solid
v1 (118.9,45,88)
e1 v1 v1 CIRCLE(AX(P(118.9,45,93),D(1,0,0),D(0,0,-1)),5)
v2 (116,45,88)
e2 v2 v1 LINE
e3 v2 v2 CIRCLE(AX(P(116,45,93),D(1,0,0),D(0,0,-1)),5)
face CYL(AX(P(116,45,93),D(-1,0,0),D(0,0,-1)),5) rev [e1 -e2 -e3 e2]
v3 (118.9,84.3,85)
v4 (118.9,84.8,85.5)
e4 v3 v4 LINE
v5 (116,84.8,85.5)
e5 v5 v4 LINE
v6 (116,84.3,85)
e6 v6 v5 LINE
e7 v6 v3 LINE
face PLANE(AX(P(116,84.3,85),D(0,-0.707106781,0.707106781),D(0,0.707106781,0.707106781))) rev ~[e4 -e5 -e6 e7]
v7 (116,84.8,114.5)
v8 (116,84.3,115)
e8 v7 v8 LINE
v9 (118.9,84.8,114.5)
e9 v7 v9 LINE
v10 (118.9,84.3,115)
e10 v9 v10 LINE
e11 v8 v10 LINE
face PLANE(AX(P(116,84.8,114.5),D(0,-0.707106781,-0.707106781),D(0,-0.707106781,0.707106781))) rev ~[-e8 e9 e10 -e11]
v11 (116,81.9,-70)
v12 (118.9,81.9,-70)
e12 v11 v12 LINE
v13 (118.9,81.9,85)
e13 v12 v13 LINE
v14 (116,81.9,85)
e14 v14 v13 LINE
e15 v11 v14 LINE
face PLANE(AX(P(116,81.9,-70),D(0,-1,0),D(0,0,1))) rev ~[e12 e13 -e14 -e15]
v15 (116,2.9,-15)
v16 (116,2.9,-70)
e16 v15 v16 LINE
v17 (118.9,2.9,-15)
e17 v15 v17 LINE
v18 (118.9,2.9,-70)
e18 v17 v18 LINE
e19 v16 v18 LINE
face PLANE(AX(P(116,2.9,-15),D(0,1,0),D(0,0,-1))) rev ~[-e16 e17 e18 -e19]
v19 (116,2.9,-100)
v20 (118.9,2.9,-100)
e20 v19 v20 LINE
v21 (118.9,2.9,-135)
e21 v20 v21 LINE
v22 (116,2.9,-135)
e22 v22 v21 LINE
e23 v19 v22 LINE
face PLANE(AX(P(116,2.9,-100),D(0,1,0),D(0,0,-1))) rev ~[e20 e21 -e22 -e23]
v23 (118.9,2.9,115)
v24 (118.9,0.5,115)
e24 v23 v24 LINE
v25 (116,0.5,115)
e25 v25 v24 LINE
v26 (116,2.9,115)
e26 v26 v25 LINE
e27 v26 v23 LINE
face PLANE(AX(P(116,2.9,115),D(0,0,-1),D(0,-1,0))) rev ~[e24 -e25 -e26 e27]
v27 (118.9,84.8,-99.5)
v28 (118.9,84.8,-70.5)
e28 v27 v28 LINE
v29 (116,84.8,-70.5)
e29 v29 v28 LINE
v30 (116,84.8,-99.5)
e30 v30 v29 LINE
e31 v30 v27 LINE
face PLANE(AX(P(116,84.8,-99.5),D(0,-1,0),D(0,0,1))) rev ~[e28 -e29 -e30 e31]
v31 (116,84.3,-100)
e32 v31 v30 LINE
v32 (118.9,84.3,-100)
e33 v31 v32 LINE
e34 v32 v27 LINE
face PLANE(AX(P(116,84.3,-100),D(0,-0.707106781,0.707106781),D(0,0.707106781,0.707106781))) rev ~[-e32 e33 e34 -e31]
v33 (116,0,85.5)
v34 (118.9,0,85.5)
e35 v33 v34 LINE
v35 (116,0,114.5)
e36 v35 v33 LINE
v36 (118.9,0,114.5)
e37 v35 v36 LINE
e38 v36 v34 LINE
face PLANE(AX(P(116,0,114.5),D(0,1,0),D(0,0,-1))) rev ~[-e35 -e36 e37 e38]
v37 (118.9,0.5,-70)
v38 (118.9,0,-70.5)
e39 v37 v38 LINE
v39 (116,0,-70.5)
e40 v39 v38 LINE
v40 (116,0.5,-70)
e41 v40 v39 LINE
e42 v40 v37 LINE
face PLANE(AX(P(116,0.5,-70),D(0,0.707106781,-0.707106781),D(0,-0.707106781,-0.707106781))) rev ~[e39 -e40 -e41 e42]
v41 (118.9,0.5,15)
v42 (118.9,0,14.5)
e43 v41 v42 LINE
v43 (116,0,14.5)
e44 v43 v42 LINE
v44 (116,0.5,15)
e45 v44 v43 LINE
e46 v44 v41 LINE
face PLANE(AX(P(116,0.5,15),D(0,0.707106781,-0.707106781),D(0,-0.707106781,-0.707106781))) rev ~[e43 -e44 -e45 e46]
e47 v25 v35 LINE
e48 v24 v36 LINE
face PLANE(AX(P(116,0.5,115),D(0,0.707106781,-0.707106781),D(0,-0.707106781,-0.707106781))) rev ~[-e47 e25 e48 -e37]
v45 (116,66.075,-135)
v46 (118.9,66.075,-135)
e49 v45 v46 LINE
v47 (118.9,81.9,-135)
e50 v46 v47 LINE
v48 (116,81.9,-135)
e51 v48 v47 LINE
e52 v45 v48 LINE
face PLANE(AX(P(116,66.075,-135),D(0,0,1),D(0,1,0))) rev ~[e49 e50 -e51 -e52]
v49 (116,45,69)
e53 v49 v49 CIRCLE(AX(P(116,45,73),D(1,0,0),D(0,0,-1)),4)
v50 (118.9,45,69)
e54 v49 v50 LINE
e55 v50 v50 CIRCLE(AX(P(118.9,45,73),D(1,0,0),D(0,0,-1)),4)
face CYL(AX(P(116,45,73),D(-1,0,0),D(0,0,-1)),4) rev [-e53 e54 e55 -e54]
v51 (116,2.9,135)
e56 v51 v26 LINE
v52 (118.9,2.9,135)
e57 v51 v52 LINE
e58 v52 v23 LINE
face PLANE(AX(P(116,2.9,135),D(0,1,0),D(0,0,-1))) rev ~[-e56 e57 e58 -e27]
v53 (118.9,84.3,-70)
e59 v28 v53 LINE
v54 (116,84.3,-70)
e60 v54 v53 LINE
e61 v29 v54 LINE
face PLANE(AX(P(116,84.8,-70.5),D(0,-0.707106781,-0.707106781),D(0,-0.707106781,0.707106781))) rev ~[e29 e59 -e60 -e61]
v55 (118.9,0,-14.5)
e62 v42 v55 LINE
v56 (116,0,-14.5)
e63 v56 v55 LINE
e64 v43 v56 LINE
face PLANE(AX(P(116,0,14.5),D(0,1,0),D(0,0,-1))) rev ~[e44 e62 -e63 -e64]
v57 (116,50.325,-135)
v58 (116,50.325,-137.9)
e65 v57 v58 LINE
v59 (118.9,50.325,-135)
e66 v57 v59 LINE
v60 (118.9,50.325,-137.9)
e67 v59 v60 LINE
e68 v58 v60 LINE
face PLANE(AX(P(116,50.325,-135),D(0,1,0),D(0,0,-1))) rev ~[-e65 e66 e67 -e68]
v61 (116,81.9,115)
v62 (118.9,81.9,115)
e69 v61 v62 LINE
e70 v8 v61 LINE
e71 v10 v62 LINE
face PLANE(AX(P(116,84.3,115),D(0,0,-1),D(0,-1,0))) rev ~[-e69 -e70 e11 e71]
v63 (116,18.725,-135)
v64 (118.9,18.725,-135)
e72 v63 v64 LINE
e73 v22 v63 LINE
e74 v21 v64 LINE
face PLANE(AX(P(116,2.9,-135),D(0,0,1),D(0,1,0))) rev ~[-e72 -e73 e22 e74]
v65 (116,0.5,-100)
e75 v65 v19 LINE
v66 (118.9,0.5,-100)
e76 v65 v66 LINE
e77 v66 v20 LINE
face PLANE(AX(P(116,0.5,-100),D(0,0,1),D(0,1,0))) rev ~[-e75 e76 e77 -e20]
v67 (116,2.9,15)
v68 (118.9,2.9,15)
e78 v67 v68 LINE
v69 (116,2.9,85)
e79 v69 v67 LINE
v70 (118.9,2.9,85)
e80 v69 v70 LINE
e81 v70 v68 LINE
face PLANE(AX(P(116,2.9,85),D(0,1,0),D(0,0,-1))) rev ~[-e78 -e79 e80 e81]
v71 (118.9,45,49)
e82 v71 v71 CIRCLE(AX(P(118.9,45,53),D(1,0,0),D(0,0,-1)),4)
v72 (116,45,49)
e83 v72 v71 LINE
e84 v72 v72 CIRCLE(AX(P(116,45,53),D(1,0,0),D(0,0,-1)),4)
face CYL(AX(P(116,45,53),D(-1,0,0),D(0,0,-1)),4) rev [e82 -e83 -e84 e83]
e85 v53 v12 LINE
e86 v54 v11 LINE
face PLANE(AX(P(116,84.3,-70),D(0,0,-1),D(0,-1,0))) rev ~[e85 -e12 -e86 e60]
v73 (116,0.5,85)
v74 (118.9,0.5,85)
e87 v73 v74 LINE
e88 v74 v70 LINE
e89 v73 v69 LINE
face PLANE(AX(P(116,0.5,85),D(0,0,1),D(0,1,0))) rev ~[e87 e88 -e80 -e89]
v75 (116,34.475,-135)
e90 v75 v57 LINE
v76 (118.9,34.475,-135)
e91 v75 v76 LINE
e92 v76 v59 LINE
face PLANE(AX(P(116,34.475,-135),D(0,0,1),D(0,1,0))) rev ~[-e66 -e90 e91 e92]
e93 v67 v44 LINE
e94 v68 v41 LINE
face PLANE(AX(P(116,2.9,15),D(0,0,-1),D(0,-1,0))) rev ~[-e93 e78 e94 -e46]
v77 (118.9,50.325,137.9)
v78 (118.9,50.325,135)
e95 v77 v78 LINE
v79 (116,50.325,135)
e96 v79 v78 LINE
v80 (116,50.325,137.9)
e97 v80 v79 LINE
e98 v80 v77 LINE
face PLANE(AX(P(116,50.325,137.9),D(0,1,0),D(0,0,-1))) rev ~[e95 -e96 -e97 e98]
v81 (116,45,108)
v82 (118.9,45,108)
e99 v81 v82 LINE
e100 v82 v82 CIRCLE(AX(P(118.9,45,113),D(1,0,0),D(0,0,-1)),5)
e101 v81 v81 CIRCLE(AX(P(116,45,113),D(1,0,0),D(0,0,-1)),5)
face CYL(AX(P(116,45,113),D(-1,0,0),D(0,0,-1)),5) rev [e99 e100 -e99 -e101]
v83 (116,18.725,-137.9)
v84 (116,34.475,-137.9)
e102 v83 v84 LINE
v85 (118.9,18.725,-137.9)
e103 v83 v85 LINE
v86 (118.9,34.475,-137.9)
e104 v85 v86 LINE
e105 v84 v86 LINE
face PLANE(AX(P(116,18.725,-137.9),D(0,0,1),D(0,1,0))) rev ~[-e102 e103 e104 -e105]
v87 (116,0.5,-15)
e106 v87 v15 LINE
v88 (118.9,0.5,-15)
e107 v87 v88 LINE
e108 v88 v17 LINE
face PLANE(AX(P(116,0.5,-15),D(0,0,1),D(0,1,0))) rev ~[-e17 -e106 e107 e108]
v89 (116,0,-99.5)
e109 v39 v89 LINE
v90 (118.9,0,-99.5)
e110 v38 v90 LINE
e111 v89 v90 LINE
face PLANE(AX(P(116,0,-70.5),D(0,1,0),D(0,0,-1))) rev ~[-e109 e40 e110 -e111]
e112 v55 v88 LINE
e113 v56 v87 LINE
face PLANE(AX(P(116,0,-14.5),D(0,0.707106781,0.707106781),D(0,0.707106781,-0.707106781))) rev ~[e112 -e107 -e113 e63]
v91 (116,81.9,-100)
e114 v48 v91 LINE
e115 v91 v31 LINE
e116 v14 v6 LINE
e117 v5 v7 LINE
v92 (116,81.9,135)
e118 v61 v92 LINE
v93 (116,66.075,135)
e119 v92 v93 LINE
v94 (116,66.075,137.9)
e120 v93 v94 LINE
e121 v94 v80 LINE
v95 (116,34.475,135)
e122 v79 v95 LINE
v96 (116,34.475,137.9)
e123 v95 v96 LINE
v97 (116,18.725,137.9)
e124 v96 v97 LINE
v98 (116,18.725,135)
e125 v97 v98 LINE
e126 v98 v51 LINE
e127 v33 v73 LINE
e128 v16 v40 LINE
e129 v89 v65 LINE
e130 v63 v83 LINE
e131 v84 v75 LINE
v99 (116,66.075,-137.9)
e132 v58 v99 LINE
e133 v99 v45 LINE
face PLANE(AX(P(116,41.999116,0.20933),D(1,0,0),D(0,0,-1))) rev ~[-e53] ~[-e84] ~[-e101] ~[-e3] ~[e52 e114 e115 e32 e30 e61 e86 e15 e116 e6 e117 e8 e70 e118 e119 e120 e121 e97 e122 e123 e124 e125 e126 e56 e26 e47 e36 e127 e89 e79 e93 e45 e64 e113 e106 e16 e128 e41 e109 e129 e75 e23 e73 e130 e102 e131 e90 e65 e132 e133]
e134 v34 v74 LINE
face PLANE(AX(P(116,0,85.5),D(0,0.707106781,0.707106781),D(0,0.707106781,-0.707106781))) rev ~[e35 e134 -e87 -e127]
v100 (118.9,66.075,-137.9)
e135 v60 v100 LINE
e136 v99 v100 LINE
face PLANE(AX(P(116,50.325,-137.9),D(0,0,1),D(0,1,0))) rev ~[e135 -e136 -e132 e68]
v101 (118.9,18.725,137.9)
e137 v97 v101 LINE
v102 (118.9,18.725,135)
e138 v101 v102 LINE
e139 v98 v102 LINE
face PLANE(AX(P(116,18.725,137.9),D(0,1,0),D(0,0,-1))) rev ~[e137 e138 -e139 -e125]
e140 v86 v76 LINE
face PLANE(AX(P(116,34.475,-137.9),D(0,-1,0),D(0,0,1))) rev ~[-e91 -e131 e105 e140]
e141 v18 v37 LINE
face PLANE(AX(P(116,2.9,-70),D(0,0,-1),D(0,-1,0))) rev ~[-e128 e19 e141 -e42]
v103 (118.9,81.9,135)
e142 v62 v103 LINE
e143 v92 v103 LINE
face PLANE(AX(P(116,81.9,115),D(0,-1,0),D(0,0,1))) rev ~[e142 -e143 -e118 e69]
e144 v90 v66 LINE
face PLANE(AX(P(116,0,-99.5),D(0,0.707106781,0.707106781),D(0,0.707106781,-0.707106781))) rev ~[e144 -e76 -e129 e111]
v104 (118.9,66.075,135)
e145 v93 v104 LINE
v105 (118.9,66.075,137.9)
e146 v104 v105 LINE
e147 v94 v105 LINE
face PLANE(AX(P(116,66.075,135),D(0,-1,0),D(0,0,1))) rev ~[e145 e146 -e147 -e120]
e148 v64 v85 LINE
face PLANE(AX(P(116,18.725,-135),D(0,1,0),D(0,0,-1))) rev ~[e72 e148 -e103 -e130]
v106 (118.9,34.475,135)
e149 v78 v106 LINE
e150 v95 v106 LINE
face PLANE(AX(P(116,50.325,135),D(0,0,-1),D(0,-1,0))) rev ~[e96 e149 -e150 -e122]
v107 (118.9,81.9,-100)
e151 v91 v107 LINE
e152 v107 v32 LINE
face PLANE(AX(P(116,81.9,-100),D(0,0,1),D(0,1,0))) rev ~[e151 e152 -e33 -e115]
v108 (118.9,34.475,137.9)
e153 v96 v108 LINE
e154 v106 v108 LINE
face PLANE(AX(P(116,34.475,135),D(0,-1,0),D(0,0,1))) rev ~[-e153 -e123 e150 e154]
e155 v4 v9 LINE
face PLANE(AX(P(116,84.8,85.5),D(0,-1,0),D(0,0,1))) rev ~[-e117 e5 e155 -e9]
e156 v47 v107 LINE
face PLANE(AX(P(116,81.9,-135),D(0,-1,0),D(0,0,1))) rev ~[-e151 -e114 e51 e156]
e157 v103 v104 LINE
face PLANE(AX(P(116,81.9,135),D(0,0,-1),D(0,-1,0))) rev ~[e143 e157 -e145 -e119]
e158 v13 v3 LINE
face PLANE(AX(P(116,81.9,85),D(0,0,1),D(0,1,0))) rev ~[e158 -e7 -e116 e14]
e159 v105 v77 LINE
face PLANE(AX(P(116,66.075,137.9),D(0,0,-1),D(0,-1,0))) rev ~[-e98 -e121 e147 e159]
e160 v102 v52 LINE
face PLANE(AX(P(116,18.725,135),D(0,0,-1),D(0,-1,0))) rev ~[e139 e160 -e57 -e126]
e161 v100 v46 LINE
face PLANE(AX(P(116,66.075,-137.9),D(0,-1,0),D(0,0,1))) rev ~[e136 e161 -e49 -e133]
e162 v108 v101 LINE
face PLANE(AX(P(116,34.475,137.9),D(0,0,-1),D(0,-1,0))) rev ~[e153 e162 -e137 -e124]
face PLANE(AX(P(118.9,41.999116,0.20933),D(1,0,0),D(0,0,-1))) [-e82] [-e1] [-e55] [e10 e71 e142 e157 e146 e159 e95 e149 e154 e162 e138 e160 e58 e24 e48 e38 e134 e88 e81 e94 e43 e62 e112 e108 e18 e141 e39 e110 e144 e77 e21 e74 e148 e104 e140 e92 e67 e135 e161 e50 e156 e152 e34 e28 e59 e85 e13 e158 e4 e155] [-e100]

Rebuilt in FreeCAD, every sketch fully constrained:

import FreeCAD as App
import Part
import Sketcher

V = App.Vector

doc = App.newDocument("Part")
params = doc.addObject("Spreadsheet::Sheet", "Params")
for row, (alias, value) in enumerate([
    ("sketch1_diameter", "10 mm"),
    ("sketch1_diameter2", "8 mm"),
    ("sketch1_height", "20 mm"),
    ("sketch1_height2", "29 mm"),
    ("sketch1_height3", "70 mm"),
    ("pad1_length", "2.9 mm"),
], start=1):
    params.set(f"A{row}", alias)
    params.set(f"B{row}", "=" + value)
    params.setAlias(f"B{row}", alias)

body = doc.addObject("PartDesign::Body", "Body")

# Sketch on YZ plane
sketch1 = body.newObject("Sketcher::SketchObject", "Sketch")
sketch1.AttachmentSupport = (doc.getObject("YZ_Plane"), [""])
sketch1.MapMode = "FlatFace"
sketch1.AttachmentOffset = App.Placement(V(0, 0, 116), App.Rotation())
sketch1.addGeometry([
    Part.LineSegment(V(2.9, 135, 0), V(2.9, 115, 0)),  # 0
    Part.LineSegment(V(2.9, 115, 0), V(0.5, 115, 0)),  # 1
    Part.LineSegment(V(0.5, 115, 0), V(0, 114.5, 0)),  # 2
    Part.LineSegment(V(0, 114.5, 0), V(0, 85.5, 0)),  # 3
    Part.LineSegment(V(0, 85.5, 0), V(0.5, 85, 0)),  # 4
    Part.LineSegment(V(0.5, 85, 0), V(2.9, 85, 0)),  # 5
    Part.LineSegment(V(2.9, 85, 0), V(2.9, 15, 0)),  # 6
    Part.LineSegment(V(2.9, 15, 0), V(0.5, 15, 0)),  # 7
    Part.LineSegment(V(0.5, 15, 0), V(0, 14.5, 0)),  # 8
    Part.LineSegment(V(0, 14.5, 0), V(0, -14.5, 0)),  # 9
    Part.LineSegment(V(0, -14.5, 0), V(0.5, -15, 0)),  # 10
    Part.LineSegment(V(0.5, -15, 0), V(2.9, -15, 0)),  # 11
    Part.LineSegment(V(2.9, -15, 0), V(2.9, -70, 0)),  # 12
    Part.LineSegment(V(2.9, -70, 0), V(0.5, -70, 0)),  # 13
    Part.LineSegment(V(0.5, -70, 0), V(0, -70.5, 0)),  # 14
    Part.LineSegment(V(0, -70.5, 0), V(0, -99.5, 0)),  # 15
    Part.LineSegment(V(0, -99.5, 0), V(0.5, -100, 0)),  # 16
    Part.LineSegment(V(0.5, -100, 0), V(2.9, -100, 0)),  # 17
    Part.LineSegment(V(2.9, -100, 0), V(2.9, -135, 0)),  # 18
    Part.LineSegment(V(2.9, -135, 0), V(18.7, -135, 0)),  # 19
    Part.LineSegment(V(18.7, -135, 0), V(18.7, -137.9, 0)),  # 20
    Part.LineSegment(V(18.7, -137.9, 0), V(34.5, -137.9, 0)),  # 21
    Part.LineSegment(V(34.5, -137.9, 0), V(34.5, -135, 0)),  # 22
    Part.LineSegment(V(34.5, -135, 0), V(50.3, -135, 0)),  # 23
    Part.LineSegment(V(50.3, -135, 0), V(50.3, -137.9, 0)),  # 24
    Part.LineSegment(V(50.3, -137.9, 0), V(66.1, -137.9, 0)),  # 25
    Part.LineSegment(V(66.1, -137.9, 0), V(66.1, -135, 0)),  # 26
    Part.LineSegment(V(66.1, -135, 0), V(81.9, -135, 0)),  # 27
    Part.LineSegment(V(81.9, -135, 0), V(81.9, -100, 0)),  # 28
    Part.LineSegment(V(81.9, -100, 0), V(84.3, -100, 0)),  # 29
    Part.LineSegment(V(84.3, -100, 0), V(84.8, -99.5, 0)),  # 30
    Part.LineSegment(V(84.8, -99.5, 0), V(84.8, -70.5, 0)),  # 31
    Part.LineSegment(V(84.8, -70.5, 0), V(84.3, -70, 0)),  # 32
    Part.LineSegment(V(84.3, -70, 0), V(81.9, -70, 0)),  # 33
    Part.LineSegment(V(81.9, -70, 0), V(81.9, 85, 0)),  # 34
    Part.LineSegment(V(81.9, 85, 0), V(84.3, 85, 0)),  # 35
    Part.LineSegment(V(84.3, 85, 0), V(84.8, 85.5, 0)),  # 36
    Part.LineSegment(V(84.8, 85.5, 0), V(84.8, 114.5, 0)),  # 37
    Part.LineSegment(V(84.8, 114.5, 0), V(84.3, 115, 0)),  # 38
    Part.LineSegment(V(84.3, 115, 0), V(81.9, 115, 0)),  # 39
    Part.LineSegment(V(81.9, 115, 0), V(81.9, 135, 0)),  # 40
    Part.LineSegment(V(81.9, 135, 0), V(66.1, 135, 0)),  # 41
    Part.LineSegment(V(66.1, 135, 0), V(66.1, 137.9, 0)),  # 42
    Part.LineSegment(V(66.1, 137.9, 0), V(50.3, 137.9, 0)),  # 43
    Part.LineSegment(V(50.3, 137.9, 0), V(50.3, 135, 0)),  # 44
    Part.LineSegment(V(50.3, 135, 0), V(34.5, 135, 0)),  # 45
    Part.LineSegment(V(34.5, 135, 0), V(34.5, 137.9, 0)),  # 46
    Part.LineSegment(V(34.5, 137.9, 0), V(18.7, 137.9, 0)),  # 47
    Part.LineSegment(V(18.7, 137.9, 0), V(18.7, 135, 0)),  # 48
    Part.LineSegment(V(18.7, 135, 0), V(2.9, 135, 0)),  # 49
    Part.Circle(V(45, 113, 0), V(0, 0, 1), 5),  # 50
    Part.Circle(V(45, 93, 0), V(0, 0, 1), 5),  # 51
    Part.Circle(V(45, 73, 0), V(0, 0, 1), 4),  # 52
    Part.Circle(V(45, 53, 0), V(0, 0, 1), 4),  # 53
], False)
sketch1.addConstraint([
    Sketcher.Constraint("Coincident", 0, 2, 1, 1),
    Sketcher.Constraint("Coincident", 1, 2, 2, 1),
    Sketcher.Constraint("Coincident", 2, 2, 3, 1),
    Sketcher.Constraint("Coincident", 3, 2, 4, 1),
    Sketcher.Constraint("Coincident", 4, 2, 5, 1),
    Sketcher.Constraint("Coincident", 5, 2, 6, 1),
    Sketcher.Constraint("Coincident", 6, 2, 7, 1),
    Sketcher.Constraint("Coincident", 7, 2, 8, 1),
    Sketcher.Constraint("Coincident", 8, 2, 9, 1),
    Sketcher.Constraint("Coincident", 9, 2, 10, 1),
    Sketcher.Constraint("Coincident", 10, 2, 11, 1),
    Sketcher.Constraint("Coincident", 11, 2, 12, 1),
    Sketcher.Constraint("Coincident", 12, 2, 13, 1),
    Sketcher.Constraint("Coincident", 13, 2, 14, 1),
    Sketcher.Constraint("Coincident", 14, 2, 15, 1),
    Sketcher.Constraint("Coincident", 15, 2, 16, 1),
    Sketcher.Constraint("Coincident", 16, 2, 17, 1),
    Sketcher.Constraint("Coincident", 17, 2, 18, 1),
    Sketcher.Constraint("Coincident", 18, 2, 19, 1),
    Sketcher.Constraint("Coincident", 19, 2, 20, 1),
    Sketcher.Constraint("Coincident", 20, 2, 21, 1),
    Sketcher.Constraint("Coincident", 21, 2, 22, 1),
    Sketcher.Constraint("Coincident", 22, 2, 23, 1),
    Sketcher.Constraint("Coincident", 23, 2, 24, 1),
    Sketcher.Constraint("Coincident", 24, 2, 25, 1),
    Sketcher.Constraint("Coincident", 25, 2, 26, 1),
    Sketcher.Constraint("Coincident", 26, 2, 27, 1),
    Sketcher.Constraint("Coincident", 27, 2, 28, 1),
    Sketcher.Constraint("Coincident", 28, 2, 29, 1),
    Sketcher.Constraint("Coincident", 29, 2, 30, 1),
    Sketcher.Constraint("Coincident", 30, 2, 31, 1),
    Sketcher.Constraint("Coincident", 31, 2, 32, 1),
    Sketcher.Constraint("Coincident", 32, 2, 33, 1),
    Sketcher.Constraint("Coincident", 33, 2, 34, 1),
    Sketcher.Constraint("Coincident", 34, 2, 35, 1),
    Sketcher.Constraint("Coincident", 35, 2, 36, 1),
    Sketcher.Constraint("Coincident", 36, 2, 37, 1),
    Sketcher.Constraint("Coincident", 37, 2, 38, 1),
    Sketcher.Constraint("Coincident", 38, 2, 39, 1),
    Sketcher.Constraint("Coincident", 39, 2, 40, 1),
    Sketcher.Constraint("Coincident", 40, 2, 41, 1),
    Sketcher.Constraint("Coincident", 41, 2, 42, 1),
    Sketcher.Constraint("Coincident", 42, 2, 43, 1),
    Sketcher.Constraint("Coincident", 43, 2, 44, 1),
    Sketcher.Constraint("Coincident", 44, 2, 45, 1),
    Sketcher.Constraint("Coincident", 45, 2, 46, 1),
    Sketcher.Constraint("Coincident", 46, 2, 47, 1),
    Sketcher.Constraint("Coincident", 47, 2, 48, 1),
    Sketcher.Constraint("Coincident", 48, 2, 49, 1),
    Sketcher.Constraint("Coincident", 49, 2, 0, 1),
    Sketcher.Constraint("Vertical", 0),
    Sketcher.Constraint("Horizontal", 1),
    Sketcher.Constraint("Vertical", 3),
    Sketcher.Constraint("Horizontal", 5),
    Sketcher.Constraint("Vertical", 6),
    Sketcher.Constraint("Horizontal", 7),
    Sketcher.Constraint("Vertical", 9),
    Sketcher.Constraint("Horizontal", 11),
    Sketcher.Constraint("Vertical", 12),
    Sketcher.Constraint("Horizontal", 13),
    Sketcher.Constraint("Vertical", 15),
    Sketcher.Constraint("Horizontal", 17),
    Sketcher.Constraint("Vertical", 18),
    Sketcher.Constraint("Horizontal", 19),
    Sketcher.Constraint("Vertical", 20),
    Sketcher.Constraint("Horizontal", 21),
    Sketcher.Constraint("Vertical", 22),
    Sketcher.Constraint("Horizontal", 23),
    Sketcher.Constraint("Vertical", 24),
    Sketcher.Constraint("Horizontal", 25),
    Sketcher.Constraint("Vertical", 26),
    Sketcher.Constraint("Horizontal", 27),
    Sketcher.Constraint("Vertical", 28),
    Sketcher.Constraint("Horizontal", 29),
    Sketcher.Constraint("Vertical", 31),
    Sketcher.Constraint("Horizontal", 33),
    Sketcher.Constraint("Vertical", 34),
    Sketcher.Constraint("Horizontal", 35),
    Sketcher.Constraint("Vertical", 37),
    Sketcher.Constraint("Horizontal", 39),
    Sketcher.Constraint("Vertical", 40),
    Sketcher.Constraint("Horizontal", 41),
    Sketcher.Constraint("Vertical", 42),
    Sketcher.Constraint("Horizontal", 43),
    Sketcher.Constraint("Vertical", 44),
    Sketcher.Constraint("Horizontal", 45),
    Sketcher.Constraint("Vertical", 46),
    Sketcher.Constraint("Horizontal", 47),
    Sketcher.Constraint("Vertical", 48),
    Sketcher.Constraint("Horizontal", 49),
    Sketcher.Constraint("Equal", 50, 51),
    Sketcher.Constraint("Equal", 52, 53),
    Sketcher.Constraint("Symmetric", 8, 2, 9, 2, -1, 1),
    Sketcher.Constraint("Symmetric", 7, 2, 10, 2, -1),
    Sketcher.Constraint("Symmetric", 27, 2, 40, 2, -1),
    Sketcher.Constraint("Symmetric", 25, 2, 42, 2, -1),
    Sketcher.Constraint("Symmetric", 23, 2, 44, 2, -1),
    Sketcher.Constraint("Symmetric", 21, 2, 46, 2, -1),
    Sketcher.Constraint("Symmetric", 19, 2, 48, 2, -1),
    Sketcher.Constraint("PointOnObject", 2, 2, -2),
    Sketcher.Constraint("PointOnObject", 14, 2, -2),
    Sketcher.Constraint("Perpendicular", 2, 4),
    Sketcher.Constraint("Perpendicular", 4, 8),
    Sketcher.Constraint("Perpendicular", 8, 10),
    Sketcher.Constraint("Perpendicular", 10, 14),
    Sketcher.Constraint("Perpendicular", 14, 16),
    Sketcher.Constraint("Perpendicular", 16, 30),
    Sketcher.Constraint("Perpendicular", 30, 32),
    Sketcher.Constraint("Perpendicular", 32, 36),
    Sketcher.Constraint("Perpendicular", 36, 38),
    Sketcher.Constraint("Horizontal", 19, 2, 22, 2),
    Sketcher.Constraint("Horizontal", 21, 2, 24, 2),
    Sketcher.Constraint("Horizontal", 23, 2, 26, 2),
    Sketcher.Constraint("Horizontal", 17, 2, 28, 2),
    Sketcher.Constraint("Horizontal", 15, 2, 30, 2),
    Sketcher.Constraint("Horizontal", 14, 2, 31, 2),
    Sketcher.Constraint("Horizontal", 13, 2, 32, 2),
    Sketcher.Constraint("Horizontal", 5, 2, 34, 2),
    Sketcher.Constraint("Horizontal", 3, 2, 36, 2),
    Sketcher.Constraint("Horizontal", 2, 2, 37, 2),
    Sketcher.Constraint("Horizontal", 1, 2, 38, 2),
    Sketcher.Constraint("Vertical", 50, 3, 51, 3),
    Sketcher.Constraint("Vertical", 51, 3, 52, 3),
    Sketcher.Constraint("Vertical", 52, 3, 53, 3),
    Sketcher.Constraint("Vertical", 1, 2, 4, 2),
    Sketcher.Constraint("Vertical", 0, 2, 5, 2),
    Sketcher.Constraint("Vertical", 4, 2, 7, 2),
    Sketcher.Constraint("Vertical", 6, 2, 11, 2),
    Sketcher.Constraint("Vertical", 10, 2, 13, 2),
    Sketcher.Constraint("Vertical", 13, 2, 16, 2),
    Sketcher.Constraint("Vertical", 12, 2, 17, 2),
    Sketcher.Constraint("Vertical", 28, 2, 33, 2),
    Sketcher.Constraint("Vertical", 32, 2, 35, 2),
    Sketcher.Constraint("Equal", 21, 25),
    Sketcher.Constraint("Equal", 19, 27),
    Sketcher.Constraint("Equal", 17, 29),
    Sketcher.Constraint("Equal", 3, 9),
    Sketcher.Constraint("Equal", 9, 15),
    Sketcher.Constraint("Diameter", 50, 10.0),
    Sketcher.Constraint("Diameter", 52, 8.0),
    Sketcher.Constraint("DistanceY", 0, 2, 0, 1, 20.0),
    Sketcher.Constraint("DistanceY", 3, 2, 3, 1, 29.0),
    Sketcher.Constraint("DistanceY", 6, 2, 6, 1, 70.0),
    Sketcher.Constraint("DistanceY", 12, 2, 12, 1, 55.0),
    Sketcher.Constraint("DistanceY", 34, 1, 34, 2, 155.0),
    Sketcher.Constraint("DistanceX", 1, 2, 1, 1, 2.4),
    Sketcher.Constraint("DistanceY", 20, 2, 20, 1, 2.9),
    Sketcher.Constraint("DistanceX", -1, 1, 50, 3, 45.0),
    Sketcher.Constraint("DistanceY", -1, 1, 50, 3, 113.0),
    Sketcher.Constraint("DistanceY", -1, 1, 51, 3, 93.0),
    Sketcher.Constraint("DistanceY", -1, 1, 52, 3, 73.0),
    Sketcher.Constraint("DistanceY", -1, 1, 53, 3, 53.0),
    Sketcher.Constraint("DistanceX", 5, 2, 34, 2, 79.0),
    Sketcher.Constraint("DistanceX", 21, 1, 21, 2, 15.75),
    Sketcher.Constraint("DistanceX", 23, 1, 23, 2, 15.85),
])
sketch1.setExpression("Constraints[138]", "Params.sketch1_diameter")
sketch1.setExpression("Constraints[139]", "Params.sketch1_diameter2")
sketch1.setExpression("Constraints[140]", "Params.sketch1_height")
sketch1.setExpression("Constraints[141]", "Params.sketch1_height2")
sketch1.setExpression("Constraints[142]", "Params.sketch1_height3")
pad1 = body.newObject("PartDesign::Pad", "Pad")
pad1.Profile = sketch1
pad1.setExpression("Length", "Params.pad1_length")

doc.recompute()
